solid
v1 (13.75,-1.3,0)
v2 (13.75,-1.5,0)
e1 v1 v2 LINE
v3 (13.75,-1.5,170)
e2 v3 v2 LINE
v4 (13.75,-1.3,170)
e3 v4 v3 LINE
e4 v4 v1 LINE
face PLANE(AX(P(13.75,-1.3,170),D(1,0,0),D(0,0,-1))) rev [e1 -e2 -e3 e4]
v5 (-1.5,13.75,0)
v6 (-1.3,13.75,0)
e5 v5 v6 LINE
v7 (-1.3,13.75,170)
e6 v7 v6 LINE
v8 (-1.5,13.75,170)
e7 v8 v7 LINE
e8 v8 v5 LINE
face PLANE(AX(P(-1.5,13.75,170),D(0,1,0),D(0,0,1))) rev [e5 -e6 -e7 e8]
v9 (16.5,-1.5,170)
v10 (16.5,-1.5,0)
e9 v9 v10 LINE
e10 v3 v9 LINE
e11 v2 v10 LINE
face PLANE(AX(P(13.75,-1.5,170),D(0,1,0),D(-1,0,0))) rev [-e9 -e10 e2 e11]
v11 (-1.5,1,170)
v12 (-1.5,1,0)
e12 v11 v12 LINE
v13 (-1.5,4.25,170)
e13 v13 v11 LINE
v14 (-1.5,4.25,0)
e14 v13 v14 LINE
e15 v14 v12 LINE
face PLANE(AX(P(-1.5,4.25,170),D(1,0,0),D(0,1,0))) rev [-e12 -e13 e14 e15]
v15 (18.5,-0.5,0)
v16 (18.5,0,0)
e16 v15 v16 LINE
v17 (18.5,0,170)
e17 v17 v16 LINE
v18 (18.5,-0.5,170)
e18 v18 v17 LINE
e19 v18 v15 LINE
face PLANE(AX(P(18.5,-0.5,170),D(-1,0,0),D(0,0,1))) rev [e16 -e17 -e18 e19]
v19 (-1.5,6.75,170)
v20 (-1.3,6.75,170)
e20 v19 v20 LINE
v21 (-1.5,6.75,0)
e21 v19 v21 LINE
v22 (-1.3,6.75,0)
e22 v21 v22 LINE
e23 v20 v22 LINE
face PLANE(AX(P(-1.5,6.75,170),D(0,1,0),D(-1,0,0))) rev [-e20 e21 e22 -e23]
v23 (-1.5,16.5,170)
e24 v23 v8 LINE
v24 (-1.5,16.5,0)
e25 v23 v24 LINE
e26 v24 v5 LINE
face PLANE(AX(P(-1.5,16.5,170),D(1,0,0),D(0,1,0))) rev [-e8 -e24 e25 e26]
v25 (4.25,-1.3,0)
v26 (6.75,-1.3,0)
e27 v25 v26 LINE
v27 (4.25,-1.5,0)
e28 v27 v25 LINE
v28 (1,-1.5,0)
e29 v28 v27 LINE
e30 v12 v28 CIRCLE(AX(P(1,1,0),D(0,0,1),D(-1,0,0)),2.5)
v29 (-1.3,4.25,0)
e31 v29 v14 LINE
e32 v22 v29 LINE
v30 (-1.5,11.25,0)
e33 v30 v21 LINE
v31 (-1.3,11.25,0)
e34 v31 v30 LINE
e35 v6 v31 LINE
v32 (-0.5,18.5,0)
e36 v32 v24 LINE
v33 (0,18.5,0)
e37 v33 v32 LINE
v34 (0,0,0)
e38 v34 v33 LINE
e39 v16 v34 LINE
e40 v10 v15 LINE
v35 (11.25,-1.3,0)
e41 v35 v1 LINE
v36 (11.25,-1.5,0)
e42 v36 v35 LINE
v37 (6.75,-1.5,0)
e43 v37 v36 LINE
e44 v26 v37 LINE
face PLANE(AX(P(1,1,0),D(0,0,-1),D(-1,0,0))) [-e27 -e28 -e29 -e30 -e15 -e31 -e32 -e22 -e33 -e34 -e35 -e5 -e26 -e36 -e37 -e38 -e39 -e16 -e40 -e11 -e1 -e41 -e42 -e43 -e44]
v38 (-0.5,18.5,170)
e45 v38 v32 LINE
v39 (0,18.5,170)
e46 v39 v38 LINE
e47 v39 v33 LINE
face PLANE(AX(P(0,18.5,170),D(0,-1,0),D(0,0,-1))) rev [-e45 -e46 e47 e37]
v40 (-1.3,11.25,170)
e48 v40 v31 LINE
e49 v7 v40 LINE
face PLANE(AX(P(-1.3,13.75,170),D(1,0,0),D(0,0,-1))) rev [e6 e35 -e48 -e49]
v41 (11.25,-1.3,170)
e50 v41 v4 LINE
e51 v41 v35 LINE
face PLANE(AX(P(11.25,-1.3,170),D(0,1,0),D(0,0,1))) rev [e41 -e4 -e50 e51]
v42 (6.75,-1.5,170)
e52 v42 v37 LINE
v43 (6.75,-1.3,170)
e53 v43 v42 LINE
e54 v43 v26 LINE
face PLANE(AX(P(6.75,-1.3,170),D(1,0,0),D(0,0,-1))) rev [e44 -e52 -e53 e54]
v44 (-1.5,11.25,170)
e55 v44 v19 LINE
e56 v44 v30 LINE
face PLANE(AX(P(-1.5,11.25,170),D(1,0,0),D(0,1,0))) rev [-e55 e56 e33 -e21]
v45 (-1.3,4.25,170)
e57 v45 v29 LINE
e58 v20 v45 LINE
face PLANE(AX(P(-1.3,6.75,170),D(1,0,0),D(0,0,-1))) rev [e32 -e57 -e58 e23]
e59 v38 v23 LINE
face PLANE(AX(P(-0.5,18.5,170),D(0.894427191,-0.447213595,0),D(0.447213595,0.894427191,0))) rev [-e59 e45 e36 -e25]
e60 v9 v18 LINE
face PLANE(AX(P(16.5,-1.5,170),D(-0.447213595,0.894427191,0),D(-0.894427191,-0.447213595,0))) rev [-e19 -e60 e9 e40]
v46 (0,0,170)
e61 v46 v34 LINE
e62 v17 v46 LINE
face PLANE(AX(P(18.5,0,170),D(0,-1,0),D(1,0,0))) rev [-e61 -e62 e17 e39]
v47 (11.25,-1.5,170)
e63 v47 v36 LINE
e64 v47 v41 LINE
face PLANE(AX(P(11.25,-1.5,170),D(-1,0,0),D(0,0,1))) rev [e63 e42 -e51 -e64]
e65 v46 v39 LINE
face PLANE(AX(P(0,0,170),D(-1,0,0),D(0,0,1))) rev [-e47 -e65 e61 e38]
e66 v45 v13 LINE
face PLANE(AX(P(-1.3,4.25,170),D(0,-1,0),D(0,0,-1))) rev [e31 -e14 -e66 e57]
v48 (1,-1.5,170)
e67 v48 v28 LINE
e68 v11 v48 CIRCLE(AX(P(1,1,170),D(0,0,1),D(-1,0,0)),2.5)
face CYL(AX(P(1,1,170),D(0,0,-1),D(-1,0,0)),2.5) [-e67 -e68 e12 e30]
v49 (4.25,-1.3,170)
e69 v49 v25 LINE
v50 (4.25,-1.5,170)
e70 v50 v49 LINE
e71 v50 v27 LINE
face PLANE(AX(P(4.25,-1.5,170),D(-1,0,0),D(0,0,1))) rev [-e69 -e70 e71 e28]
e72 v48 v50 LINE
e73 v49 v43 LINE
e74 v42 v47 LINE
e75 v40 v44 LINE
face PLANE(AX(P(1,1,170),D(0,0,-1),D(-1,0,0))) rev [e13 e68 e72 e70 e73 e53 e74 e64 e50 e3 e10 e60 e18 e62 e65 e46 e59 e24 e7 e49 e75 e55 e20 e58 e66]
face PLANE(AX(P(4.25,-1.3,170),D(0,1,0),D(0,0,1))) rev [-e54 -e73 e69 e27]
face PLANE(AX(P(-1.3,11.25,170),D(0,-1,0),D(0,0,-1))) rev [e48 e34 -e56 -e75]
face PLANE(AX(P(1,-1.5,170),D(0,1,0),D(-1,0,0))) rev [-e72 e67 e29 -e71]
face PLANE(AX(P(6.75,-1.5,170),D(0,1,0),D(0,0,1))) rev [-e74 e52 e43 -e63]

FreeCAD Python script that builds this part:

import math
import FreeCAD as App
import Part
import Sketcher
from FreeCAD import Vector

doc = App.newDocument("Part")
body = doc.addObject("PartDesign::Body", "Body")

sketch1 = doc.addObject("Sketcher::SketchObject", "Sketch")
body.addObject(sketch1)
sketch1.AttachmentSupport = (doc.XY_Plane, [""])
sketch1.MapMode = "FlatFace"
sketch1.addGeometry([
    Part.LineSegment(Vector(0, 0, 0), Vector(0, 18.5, 0)),
    Part.LineSegment(Vector(0, 18.5, 0), Vector(-0.5, 18.5, 0)),
    Part.LineSegment(Vector(-0.5, 18.5, 0), Vector(-1.5, 16.5, 0)),
    Part.LineSegment(Vector(-1.5, 16.5, 0), Vector(-1.5, 13.75, 0)),
    Part.LineSegment(Vector(-1.5, 13.75, 0), Vector(-1.3, 13.75, 0)),
    Part.LineSegment(Vector(-1.3, 13.75, 0), Vector(-1.3, 11.25, 0)),
    Part.LineSegment(Vector(-1.3, 11.25, 0), Vector(-1.5, 11.25, 0)),
    Part.LineSegment(Vector(-1.5, 11.25, 0), Vector(-1.5, 6.75, 0)),
    Part.LineSegment(Vector(-1.5, 6.75, 0), Vector(-1.3, 6.75, 0)),
    Part.LineSegment(Vector(-1.3, 6.75, 0), Vector(-1.3, 4.25, 0)),
    Part.LineSegment(Vector(-1.3, 4.25, 0), Vector(-1.5, 4.25, 0)),
    Part.LineSegment(Vector(-1.5, 4.25, 0), Vector(-1.5, 1, 0)),
    Part.ArcOfCircle(Part.Circle(Vector(1, 1, 0), Vector(0, 0, 1), 2.5), math.radians(180), math.radians(270)),
    Part.LineSegment(Vector(1, -1.5, 0), Vector(4.25, -1.5, 0)),
    Part.LineSegment(Vector(4.25, -1.5, 0), Vector(4.25, -1.3, 0)),
    Part.LineSegment(Vector(4.25, -1.3, 0), Vector(6.75, -1.3, 0)),
    Part.LineSegment(Vector(6.75, -1.3, 0), Vector(6.75, -1.5, 0)),
    Part.LineSegment(Vector(6.75, -1.5, 0), Vector(11.25, -1.5, 0)),
    Part.LineSegment(Vector(11.25, -1.5, 0), Vector(11.25, -1.3, 0)),
    Part.LineSegment(Vector(11.25, -1.3, 0), Vector(13.75, -1.3, 0)),
    Part.LineSegment(Vector(13.75, -1.3, 0), Vector(13.75, -1.5, 0)),
    Part.LineSegment(Vector(13.75, -1.5, 0), Vector(16.5, -1.5, 0)),
    Part.LineSegment(Vector(16.5, -1.5, 0), Vector(18.5, -0.5, 0)),
    Part.LineSegment(Vector(18.5, -0.5, 0), Vector(18.5, 0, 0)),
    Part.LineSegment(Vector(18.5, 0, 0), Vector(0, 0, 0)),
], False)
sketch1.addConstraint([
    Sketcher.Constraint("Coincident", 0, 2, 1, 1),
    Sketcher.Constraint("Coincident", 1, 2, 2, 1),
    Sketcher.Constraint("Coincident", 2, 2, 3, 1),
    Sketcher.Constraint("Coincident", 3, 2, 4, 1),
    Sketcher.Constraint("Coincident", 4, 2, 5, 1),
    Sketcher.Constraint("Coincident", 5, 2, 6, 1),
    Sketcher.Constraint("Coincident", 6, 2, 7, 1),
    Sketcher.Constraint("Coincident", 7, 2, 8, 1),
    Sketcher.Constraint("Coincident", 8, 2, 9, 1),
    Sketcher.Constraint("Coincident", 9, 2, 10, 1),
    Sketcher.Constraint("Coincident", 10, 2, 11, 1),
    Sketcher.Constraint("Tangent", 11, 2, 12, 1),
    Sketcher.Constraint("Tangent", 12, 2, 13, 1),
    Sketcher.Constraint("Coincident", 13, 2, 14, 1),
    Sketcher.Constraint("Coincident", 14, 2, 15, 1),
    Sketcher.Constraint("Coincident", 15, 2, 16, 1),
    Sketcher.Constraint("Coincident", 16, 2, 17, 1),
    Sketcher.Constraint("Coincident", 17, 2, 18, 1),
    Sketcher.Constraint("Coincident", 18, 2, 19, 1),
    Sketcher.Constraint("Coincident", 19, 2, 20, 1),
    Sketcher.Constraint("Coincident", 20, 2, 21, 1),
    Sketcher.Constraint("Coincident", 21, 2, 22, 1),
    Sketcher.Constraint("Coincident", 22, 2, 23, 1),
    Sketcher.Constraint("Coincident", 23, 2, 24, 1),
    Sketcher.Constraint("Coincident", 24, 2, 0, 1),
    Sketcher.Constraint("Vertical", 0),
    Sketcher.Constraint("Horizontal", 1),
    Sketcher.Constraint("Vertical", 3),
    Sketcher.Constraint("Horizontal", 4),
    Sketcher.Constraint("Vertical", 5),
    Sketcher.Constraint("Horizontal", 6),
    Sketcher.Constraint("Vertical", 7),
    Sketcher.Constraint("Horizontal", 8),
    Sketcher.Constraint("Vertical", 9),
    Sketcher.Constraint("Horizontal", 10),
    Sketcher.Constraint("Vertical", 11),
    Sketcher.Constraint("Horizontal", 13),
    Sketcher.Constraint("Vertical", 14),
    Sketcher.Constraint("Horizontal", 15),
    Sketcher.Constraint("Vertical", 16),
    Sketcher.Constraint("Horizontal", 17),
    Sketcher.Constraint("Vertical", 18),
    Sketcher.Constraint("Horizontal", 19),
    Sketcher.Constraint("Vertical", 20),
    Sketcher.Constraint("Horizontal", 21),
    Sketcher.Constraint("Vertical", 23),
    Sketcher.Constraint("Horizontal", 24),
    Sketcher.Constraint("Coincident", 24, 2, -1, 1),
    Sketcher.Constraint("Horizontal", 13, 2, 16, 2),
    Sketcher.Constraint("Horizontal", 15, 2, 18, 2),
    Sketcher.Constraint("Horizontal", 17, 2, 20, 2),
    Sketcher.Constraint("Vertical", 3, 2, 6, 2),
    Sketcher.Constraint("Vertical", 5, 2, 8, 2),
    Sketcher.Constraint("Vertical", 7, 2, 10, 2),
    Sketcher.Constraint("Equal", 15, 19),
    Sketcher.Constraint("Equal", 24, 0),
    Sketcher.Constraint("Equal", 21, 3),
    Sketcher.Constraint("Equal", 19, 5),
    Sketcher.Constraint("Equal", 17, 7),
    Sketcher.Constraint("Equal", 5, 9),
    Sketcher.Constraint("Equal", 13, 11),
    Sketcher.Constraint("Equal", 10, 14),
    Sketcher.Constraint("Equal", 1, 23),
    Sketcher.Constraint("Equal", 2, 22),
    Sketcher.Constraint("Radius", 12, 2.5),
    Sketcher.Constraint("DistanceX", 1, 2, 1, 1, 0.5),
    Sketcher.Constraint("DistanceX", 4, 1, 4, 2, 0.2),
    Sketcher.Constraint("DistanceX", 15, 1, 15, 2, 2.5),
    Sketcher.Constraint("DistanceX", 17, 1, 17, 2, 4.5),
    Sketcher.Constraint("DistanceX", 24, 2, 24, 1, 18.5),
    Sketcher.Constraint("DistanceX", -1, 1, 12, 3, 1.0),
    Sketcher.Constraint("DistanceY", 2, 2, 1, 2, 2.0),
    Sketcher.Constraint("DistanceX", 13, 1, 13, 2, 3.25),
])
pad1 = doc.addObject("PartDesign::Pad", "Pad")
body.addObject(pad1)
pad1.Profile = sketch1
pad1.Length = 170

doc.recompute()
